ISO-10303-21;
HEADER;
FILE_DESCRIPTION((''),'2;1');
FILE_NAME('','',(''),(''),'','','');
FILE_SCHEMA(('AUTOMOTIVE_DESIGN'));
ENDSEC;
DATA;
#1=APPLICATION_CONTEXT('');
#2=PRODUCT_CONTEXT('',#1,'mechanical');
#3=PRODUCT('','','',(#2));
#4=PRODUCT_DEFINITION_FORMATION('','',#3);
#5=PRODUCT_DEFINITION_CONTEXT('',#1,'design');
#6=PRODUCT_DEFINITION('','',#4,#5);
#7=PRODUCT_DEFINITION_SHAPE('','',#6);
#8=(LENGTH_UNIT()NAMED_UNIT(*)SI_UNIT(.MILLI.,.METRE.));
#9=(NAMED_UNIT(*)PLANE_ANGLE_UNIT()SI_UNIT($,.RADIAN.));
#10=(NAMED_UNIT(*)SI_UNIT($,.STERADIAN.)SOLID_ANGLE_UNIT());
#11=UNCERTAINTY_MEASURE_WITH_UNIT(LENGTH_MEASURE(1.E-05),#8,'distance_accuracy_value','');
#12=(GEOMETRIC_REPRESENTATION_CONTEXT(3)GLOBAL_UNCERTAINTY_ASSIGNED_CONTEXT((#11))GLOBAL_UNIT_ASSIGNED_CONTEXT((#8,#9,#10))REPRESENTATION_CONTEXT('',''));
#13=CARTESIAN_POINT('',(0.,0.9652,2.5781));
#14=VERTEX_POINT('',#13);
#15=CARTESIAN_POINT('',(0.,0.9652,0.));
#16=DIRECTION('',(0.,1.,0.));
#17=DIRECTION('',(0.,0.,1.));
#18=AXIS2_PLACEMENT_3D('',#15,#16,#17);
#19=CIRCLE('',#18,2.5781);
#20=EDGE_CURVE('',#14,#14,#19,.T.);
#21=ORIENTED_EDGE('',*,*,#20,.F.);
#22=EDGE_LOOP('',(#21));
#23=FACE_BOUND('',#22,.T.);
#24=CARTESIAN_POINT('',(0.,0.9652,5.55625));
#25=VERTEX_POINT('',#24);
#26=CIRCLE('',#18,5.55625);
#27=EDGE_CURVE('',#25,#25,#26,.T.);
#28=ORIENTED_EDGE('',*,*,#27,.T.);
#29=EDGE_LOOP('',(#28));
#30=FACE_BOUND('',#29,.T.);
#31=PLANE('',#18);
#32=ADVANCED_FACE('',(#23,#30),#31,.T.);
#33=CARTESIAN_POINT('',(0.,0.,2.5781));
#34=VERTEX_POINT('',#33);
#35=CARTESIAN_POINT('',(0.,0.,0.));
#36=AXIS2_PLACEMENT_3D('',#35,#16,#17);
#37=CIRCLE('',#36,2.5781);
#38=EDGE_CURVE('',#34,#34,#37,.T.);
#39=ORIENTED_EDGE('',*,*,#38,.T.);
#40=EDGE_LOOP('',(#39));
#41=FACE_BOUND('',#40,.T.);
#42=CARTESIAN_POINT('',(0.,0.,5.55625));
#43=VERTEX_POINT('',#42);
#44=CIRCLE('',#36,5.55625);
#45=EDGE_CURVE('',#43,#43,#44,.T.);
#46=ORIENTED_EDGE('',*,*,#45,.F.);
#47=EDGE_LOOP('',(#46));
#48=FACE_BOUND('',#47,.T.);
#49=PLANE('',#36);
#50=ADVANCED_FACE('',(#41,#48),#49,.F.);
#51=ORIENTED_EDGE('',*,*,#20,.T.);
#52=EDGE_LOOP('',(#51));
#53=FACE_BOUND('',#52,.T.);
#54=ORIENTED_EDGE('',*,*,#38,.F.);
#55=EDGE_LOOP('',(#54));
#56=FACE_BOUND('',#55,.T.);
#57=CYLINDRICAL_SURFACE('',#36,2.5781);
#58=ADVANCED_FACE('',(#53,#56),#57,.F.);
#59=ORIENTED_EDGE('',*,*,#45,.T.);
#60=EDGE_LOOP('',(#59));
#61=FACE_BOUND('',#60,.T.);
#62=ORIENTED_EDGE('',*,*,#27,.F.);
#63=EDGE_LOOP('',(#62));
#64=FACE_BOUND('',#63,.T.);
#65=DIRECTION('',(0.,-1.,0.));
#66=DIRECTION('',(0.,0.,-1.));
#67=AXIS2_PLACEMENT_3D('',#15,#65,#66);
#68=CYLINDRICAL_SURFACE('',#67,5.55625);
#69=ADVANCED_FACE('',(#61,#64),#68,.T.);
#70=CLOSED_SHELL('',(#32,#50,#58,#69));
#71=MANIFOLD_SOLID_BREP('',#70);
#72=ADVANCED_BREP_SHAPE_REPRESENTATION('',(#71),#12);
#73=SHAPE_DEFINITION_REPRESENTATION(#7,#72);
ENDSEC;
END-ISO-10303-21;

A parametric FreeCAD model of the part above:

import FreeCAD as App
import Part
import Sketcher
from FreeCAD import Vector
Q = App.Units.Quantity

doc = App.newDocument("Part")
body = doc.addObject("PartDesign::Body", "Body")

# Sketch on XZ plane
sketch1 = doc.addObject("Sketcher::SketchObject", "Sketch")
body.addObject(sketch1)
sketch1.AttachmentSupport = (doc.XZ_Plane, [""])
sketch1.MapMode = "FlatFace"
sketch1.addGeometry(Part.Circle(Vector(0, 0, 0), Vector(0, 0, 1), 6), False)
sketch1.addConstraint([
    Sketcher.Constraint("Coincident", 0, 3, -1, 1),
    Sketcher.Constraint("Diameter", 0, Q("0.4375 in")),
])
pad1 = doc.addObject("PartDesign::Pad", "Pad")
body.addObject(pad1)
pad1.Profile = sketch1
pad1.Length = Q("0.038 in")
pad1.Reversed = True

# Sketch on XZ plane
sketch2 = doc.addObject("Sketcher::SketchObject", "Sketch001")
body.addObject(sketch2)
sketch2.AttachmentSupport = (doc.XZ_Plane, [""])
sketch2.MapMode = "FlatFace"
sketch2.AttachmentOffset = App.Placement(Vector(0, 0, -0.038 * 25.4), App.Rotation())
sketch2.addGeometry(Part.Circle(Vector(0, 0, 0), Vector(0, 0, 1), 2.6), False)
sketch2.addConstraint([
    Sketcher.Constraint("Coincident", 0, 3, -1, 1),
    Sketcher.Constraint("Diameter", 0, Q("0.203 in")),
])
pocket1 = doc.addObject("PartDesign::Pocket", "Pocket")
body.addObject(pocket1)
pocket1.Profile = sketch2
pocket1.Type = "ThroughAll"
pocket1.Reversed = True

doc.recompute()
